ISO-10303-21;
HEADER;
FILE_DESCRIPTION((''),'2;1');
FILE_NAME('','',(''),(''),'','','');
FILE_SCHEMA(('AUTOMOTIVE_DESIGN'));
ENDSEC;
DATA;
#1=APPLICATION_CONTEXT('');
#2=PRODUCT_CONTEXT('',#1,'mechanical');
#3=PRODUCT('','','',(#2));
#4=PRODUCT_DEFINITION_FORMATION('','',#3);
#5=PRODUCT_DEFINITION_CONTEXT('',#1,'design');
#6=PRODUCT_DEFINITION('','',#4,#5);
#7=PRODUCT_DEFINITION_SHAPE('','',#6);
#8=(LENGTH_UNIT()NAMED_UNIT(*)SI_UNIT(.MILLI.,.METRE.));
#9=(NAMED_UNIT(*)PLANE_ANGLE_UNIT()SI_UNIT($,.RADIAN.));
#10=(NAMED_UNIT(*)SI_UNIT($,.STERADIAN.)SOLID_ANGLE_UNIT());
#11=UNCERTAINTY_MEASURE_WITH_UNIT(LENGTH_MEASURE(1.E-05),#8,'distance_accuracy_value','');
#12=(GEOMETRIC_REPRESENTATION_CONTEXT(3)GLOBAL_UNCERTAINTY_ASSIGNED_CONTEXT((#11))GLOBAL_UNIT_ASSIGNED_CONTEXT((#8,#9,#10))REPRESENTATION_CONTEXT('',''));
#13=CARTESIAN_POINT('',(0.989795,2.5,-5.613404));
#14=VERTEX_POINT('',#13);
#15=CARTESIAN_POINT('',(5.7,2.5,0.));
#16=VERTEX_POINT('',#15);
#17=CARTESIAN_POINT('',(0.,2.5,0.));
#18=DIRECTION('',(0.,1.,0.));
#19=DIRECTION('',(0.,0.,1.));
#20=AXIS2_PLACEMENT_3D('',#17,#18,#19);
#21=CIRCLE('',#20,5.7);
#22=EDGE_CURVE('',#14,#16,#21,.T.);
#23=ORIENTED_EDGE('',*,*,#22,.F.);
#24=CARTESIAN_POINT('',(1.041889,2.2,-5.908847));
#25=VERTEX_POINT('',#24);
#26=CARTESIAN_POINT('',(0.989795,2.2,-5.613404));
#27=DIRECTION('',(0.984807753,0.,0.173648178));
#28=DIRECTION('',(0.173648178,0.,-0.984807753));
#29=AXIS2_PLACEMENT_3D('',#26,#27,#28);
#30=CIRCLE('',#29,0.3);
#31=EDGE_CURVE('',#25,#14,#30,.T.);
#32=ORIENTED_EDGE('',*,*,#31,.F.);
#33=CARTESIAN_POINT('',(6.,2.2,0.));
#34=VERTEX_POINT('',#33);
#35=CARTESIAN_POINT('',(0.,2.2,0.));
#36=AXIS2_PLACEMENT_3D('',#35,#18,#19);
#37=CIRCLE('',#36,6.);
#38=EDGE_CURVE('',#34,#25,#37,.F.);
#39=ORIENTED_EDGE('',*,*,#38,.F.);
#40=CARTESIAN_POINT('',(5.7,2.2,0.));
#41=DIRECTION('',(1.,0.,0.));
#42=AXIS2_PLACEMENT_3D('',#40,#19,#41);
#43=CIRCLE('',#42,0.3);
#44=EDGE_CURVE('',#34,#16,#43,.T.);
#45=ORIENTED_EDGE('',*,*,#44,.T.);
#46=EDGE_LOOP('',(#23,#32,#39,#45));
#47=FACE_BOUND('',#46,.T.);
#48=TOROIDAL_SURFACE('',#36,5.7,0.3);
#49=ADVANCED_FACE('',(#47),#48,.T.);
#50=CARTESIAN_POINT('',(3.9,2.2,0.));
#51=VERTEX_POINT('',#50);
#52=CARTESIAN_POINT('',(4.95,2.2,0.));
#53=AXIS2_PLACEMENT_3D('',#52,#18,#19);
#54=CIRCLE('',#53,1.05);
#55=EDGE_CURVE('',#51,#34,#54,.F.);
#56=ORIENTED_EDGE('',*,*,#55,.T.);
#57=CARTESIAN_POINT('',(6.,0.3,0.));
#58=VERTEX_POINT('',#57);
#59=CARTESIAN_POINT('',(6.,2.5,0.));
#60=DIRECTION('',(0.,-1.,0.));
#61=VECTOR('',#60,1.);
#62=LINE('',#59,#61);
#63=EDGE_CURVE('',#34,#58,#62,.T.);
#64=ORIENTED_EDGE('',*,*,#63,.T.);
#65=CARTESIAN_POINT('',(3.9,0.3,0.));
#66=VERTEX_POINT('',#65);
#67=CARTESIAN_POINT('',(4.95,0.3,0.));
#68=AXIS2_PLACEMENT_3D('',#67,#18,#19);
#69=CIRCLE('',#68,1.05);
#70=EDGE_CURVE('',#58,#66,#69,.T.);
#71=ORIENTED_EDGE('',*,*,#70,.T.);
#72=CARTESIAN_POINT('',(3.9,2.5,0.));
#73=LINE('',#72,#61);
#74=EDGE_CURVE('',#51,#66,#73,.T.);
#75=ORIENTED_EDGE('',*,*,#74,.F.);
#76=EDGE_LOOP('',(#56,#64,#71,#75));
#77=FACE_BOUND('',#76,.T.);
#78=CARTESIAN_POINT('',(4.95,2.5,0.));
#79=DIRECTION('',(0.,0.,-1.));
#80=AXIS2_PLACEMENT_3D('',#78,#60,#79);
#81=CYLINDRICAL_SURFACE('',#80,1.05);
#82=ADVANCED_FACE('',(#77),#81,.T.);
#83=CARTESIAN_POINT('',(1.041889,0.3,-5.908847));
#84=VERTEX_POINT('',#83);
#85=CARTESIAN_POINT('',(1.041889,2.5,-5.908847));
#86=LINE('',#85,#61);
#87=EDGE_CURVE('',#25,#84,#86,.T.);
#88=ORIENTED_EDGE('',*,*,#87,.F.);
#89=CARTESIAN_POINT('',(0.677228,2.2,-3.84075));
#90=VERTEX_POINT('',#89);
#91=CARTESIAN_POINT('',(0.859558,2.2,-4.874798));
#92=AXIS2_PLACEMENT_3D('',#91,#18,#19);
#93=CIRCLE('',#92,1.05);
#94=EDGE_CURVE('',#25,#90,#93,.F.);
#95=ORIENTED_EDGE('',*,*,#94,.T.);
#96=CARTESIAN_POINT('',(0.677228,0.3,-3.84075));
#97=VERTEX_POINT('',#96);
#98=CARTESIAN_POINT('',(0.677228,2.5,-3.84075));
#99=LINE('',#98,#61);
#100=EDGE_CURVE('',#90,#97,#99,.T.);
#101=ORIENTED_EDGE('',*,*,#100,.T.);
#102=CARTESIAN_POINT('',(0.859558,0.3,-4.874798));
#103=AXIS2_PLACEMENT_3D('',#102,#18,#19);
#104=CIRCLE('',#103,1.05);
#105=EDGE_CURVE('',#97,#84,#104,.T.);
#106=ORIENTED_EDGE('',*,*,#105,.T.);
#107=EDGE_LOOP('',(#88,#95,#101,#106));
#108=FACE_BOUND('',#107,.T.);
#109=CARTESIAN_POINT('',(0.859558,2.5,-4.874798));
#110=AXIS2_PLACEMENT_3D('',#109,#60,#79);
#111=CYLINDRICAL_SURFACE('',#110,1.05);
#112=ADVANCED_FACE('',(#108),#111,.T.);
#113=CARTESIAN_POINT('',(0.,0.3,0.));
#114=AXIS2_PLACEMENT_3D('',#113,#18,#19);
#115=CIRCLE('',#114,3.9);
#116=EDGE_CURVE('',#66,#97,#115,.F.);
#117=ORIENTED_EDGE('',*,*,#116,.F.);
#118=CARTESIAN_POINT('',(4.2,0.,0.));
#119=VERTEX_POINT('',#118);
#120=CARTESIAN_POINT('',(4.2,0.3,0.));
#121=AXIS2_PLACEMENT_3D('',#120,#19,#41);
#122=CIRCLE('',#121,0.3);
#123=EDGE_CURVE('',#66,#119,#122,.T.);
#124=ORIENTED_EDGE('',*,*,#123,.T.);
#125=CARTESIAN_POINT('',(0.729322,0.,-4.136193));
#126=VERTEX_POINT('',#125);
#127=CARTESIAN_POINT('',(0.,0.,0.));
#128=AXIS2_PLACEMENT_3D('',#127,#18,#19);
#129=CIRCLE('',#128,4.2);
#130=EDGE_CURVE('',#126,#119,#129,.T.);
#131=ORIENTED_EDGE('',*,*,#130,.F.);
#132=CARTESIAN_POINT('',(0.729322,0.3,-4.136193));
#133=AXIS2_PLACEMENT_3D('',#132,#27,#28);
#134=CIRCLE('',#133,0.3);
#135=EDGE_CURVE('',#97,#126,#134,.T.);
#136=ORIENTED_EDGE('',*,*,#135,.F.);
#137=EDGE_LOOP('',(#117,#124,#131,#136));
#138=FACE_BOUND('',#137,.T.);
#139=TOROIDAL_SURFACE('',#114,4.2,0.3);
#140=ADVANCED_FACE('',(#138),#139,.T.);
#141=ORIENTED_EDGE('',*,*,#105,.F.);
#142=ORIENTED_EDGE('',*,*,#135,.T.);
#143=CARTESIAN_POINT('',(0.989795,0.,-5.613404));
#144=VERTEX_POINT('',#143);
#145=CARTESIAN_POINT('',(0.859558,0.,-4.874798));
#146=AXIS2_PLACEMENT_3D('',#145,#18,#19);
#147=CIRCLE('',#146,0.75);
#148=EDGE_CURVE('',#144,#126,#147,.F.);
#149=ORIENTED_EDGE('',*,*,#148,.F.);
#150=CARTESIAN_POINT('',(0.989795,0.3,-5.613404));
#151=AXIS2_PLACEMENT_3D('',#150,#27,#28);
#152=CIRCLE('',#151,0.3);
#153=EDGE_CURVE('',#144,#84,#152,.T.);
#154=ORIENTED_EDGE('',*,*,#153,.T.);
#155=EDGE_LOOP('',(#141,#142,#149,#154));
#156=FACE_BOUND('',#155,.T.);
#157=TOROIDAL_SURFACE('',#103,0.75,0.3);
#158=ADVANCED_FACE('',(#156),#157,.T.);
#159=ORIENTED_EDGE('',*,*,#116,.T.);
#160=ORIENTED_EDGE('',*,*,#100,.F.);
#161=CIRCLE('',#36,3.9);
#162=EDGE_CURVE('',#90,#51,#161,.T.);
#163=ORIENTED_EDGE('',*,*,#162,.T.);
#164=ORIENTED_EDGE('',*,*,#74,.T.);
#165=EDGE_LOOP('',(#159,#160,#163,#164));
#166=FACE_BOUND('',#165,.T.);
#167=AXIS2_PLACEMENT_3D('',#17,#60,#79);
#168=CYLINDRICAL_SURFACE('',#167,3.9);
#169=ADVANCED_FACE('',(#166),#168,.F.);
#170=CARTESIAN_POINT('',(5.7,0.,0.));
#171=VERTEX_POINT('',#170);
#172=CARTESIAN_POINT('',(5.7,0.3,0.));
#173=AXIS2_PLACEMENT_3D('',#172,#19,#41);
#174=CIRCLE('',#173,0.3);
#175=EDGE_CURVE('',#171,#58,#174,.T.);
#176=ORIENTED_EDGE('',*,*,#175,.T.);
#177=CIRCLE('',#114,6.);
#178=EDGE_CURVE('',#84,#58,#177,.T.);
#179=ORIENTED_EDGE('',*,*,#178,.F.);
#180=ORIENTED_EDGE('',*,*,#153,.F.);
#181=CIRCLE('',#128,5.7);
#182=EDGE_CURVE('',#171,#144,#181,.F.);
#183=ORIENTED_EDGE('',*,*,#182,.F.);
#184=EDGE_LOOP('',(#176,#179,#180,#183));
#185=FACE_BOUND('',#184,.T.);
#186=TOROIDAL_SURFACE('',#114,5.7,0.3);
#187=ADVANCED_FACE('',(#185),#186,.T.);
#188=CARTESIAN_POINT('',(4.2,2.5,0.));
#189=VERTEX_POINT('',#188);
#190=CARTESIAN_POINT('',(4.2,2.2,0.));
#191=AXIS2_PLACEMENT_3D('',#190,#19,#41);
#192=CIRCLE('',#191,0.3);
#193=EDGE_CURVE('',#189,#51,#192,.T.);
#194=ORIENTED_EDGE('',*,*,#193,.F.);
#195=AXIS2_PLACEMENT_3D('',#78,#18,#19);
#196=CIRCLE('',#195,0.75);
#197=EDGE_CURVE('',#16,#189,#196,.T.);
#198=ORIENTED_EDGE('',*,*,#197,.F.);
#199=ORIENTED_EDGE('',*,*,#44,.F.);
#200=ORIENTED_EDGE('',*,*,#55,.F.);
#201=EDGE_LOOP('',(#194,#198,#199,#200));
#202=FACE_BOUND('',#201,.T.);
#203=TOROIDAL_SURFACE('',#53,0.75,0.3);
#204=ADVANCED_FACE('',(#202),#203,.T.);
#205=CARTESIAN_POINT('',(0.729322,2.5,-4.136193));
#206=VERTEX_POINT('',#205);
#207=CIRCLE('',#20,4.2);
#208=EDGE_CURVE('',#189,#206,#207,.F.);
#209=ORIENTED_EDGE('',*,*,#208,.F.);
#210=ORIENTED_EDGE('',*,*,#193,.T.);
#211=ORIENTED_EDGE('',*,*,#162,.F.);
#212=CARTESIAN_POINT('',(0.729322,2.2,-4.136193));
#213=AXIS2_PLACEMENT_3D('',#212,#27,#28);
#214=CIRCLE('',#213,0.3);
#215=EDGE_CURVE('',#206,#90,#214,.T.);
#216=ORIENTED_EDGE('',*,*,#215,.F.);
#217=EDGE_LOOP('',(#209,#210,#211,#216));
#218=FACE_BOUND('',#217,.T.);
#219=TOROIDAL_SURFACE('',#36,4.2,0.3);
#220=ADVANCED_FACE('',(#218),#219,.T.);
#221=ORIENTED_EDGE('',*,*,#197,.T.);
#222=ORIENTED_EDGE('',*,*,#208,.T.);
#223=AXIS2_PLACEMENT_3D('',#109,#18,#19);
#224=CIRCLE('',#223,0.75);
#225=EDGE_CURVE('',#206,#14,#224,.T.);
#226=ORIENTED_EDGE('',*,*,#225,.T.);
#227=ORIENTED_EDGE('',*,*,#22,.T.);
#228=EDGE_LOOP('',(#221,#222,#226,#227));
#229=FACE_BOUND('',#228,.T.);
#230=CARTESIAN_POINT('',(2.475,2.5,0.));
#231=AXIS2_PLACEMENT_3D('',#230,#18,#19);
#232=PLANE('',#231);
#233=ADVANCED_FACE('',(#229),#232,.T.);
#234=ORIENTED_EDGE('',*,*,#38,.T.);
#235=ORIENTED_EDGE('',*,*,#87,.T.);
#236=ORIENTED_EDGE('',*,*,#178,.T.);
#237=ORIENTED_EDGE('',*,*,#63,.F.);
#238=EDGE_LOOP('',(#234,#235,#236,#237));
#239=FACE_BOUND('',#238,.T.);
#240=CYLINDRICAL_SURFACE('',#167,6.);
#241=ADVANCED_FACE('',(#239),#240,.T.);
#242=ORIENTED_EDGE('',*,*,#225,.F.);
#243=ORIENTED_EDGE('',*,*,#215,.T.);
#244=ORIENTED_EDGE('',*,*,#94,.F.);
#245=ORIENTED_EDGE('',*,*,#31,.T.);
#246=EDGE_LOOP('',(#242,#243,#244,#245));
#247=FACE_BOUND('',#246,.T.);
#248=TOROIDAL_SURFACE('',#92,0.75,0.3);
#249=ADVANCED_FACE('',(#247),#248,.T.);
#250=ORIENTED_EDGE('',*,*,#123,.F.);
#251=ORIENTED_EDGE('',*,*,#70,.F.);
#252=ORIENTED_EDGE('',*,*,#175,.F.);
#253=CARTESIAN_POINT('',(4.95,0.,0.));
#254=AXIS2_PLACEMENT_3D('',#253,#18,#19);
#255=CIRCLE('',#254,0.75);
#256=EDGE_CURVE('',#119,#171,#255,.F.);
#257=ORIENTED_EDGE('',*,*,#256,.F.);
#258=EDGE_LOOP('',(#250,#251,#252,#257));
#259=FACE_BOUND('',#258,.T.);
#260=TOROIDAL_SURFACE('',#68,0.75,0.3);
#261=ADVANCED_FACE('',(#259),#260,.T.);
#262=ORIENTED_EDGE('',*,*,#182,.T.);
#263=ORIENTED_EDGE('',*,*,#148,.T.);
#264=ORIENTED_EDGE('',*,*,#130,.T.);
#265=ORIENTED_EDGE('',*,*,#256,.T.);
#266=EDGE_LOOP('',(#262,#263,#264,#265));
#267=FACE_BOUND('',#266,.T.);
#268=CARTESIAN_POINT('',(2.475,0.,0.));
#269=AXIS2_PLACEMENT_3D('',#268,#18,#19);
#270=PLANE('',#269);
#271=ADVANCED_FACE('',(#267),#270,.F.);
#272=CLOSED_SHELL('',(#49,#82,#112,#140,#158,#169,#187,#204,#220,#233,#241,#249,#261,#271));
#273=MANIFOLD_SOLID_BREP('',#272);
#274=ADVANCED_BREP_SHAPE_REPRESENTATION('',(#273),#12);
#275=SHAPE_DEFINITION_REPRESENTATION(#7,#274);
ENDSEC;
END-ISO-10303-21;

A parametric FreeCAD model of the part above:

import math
import FreeCAD as App
import Part
import Sketcher

V = App.Vector
Q = App.Units.Quantity


def edges_at(feature, points):
    """Names of the edges that pass closest to the given points."""
    edges = feature.Shape.Edges
    near = lambda p: min(range(len(edges)), key=lambda i: edges[i].distToShape(Part.Vertex(*p))[0])
    return sorted({f"Edge{near(p) + 1}" for p in points})

doc = App.newDocument("Part")
body = doc.addObject("PartDesign::Body", "Body")

# Sketch on XZ plane
sketch1 = body.newObject("Sketcher::SketchObject", "Sketch")
sketch1.AttachmentSupport = (doc.getObject("XZ_Plane"), [""])
sketch1.MapMode = "FlatFace"
sketch1.addGeometry([
    Part.ArcOfCircle(Part.Circle(V(0, 0, 0), V(0, 0, 1), 3.9), math.radians(0), math.radians(280)),
    Part.ArcOfCircle(Part.Circle(V(0.9, -4.9, 0), V(0, 0, 1), 1.1), math.radians(-80), math.radians(100)),
    Part.ArcOfCircle(Part.Circle(V(0, 0, 0), V(0, 0, 1), 6), math.radians(0), math.radians(280)),
    Part.ArcOfCircle(Part.Circle(V(5, 0, 0), V(0, 0, 1), 1.1), math.radians(180), math.radians(360)),
], False)
sketch1.addConstraint([
    Sketcher.Constraint("Tangent", 0, 2, 1, 2),
    Sketcher.Constraint("Tangent", 1, 1, 2, 2),
    Sketcher.Constraint("Tangent", 2, 1, 3, 2),
    Sketcher.Constraint("Tangent", 3, 1, 0, 1),
    Sketcher.Constraint("Coincident", 0, 3, -1, 1),
    Sketcher.Constraint("Coincident", 2, 3, -1, 1),
    Sketcher.Constraint("PointOnObject", 3, 3, -1),
    Sketcher.Constraint("Radius", 2, Q("6 mm")),
    Sketcher.Constraint("Radius", 0, Q("3.9 mm")),
    Sketcher.Constraint("DistanceY", 1, 3, -1, 1, Q("4.874798 mm")),
])
pad1 = body.newObject("PartDesign::Pad", "Pad")
pad1.Profile = sketch1
pad1.Length = 2.5
pad1.Reversed = True
doc.recompute()

fillet = body.newObject("PartDesign::Fillet", "Fillet")
fillet.Base = (pad1, edges_at(pad1, [
    (1.894, 2.5, -4.692),
    (-4.596, 2.5, 3.857),
    (4.95, 2.5, -1.05),
    (-2.988, 2.5, 2.507),
]))
fillet.Radius = 0.3
doc.recompute()

fillet2 = body.newObject("PartDesign::Fillet", "Fillet001")
fillet2.Base = (fillet, edges_at(fillet, [
    (-4.596, 0, 3.857),
    (1.894, 0, -4.692),
    (-2.988, 0, 2.507),
    (4.95, 0, -1.05),
]))
fillet2.Radius = 0.3

doc.recompute()
